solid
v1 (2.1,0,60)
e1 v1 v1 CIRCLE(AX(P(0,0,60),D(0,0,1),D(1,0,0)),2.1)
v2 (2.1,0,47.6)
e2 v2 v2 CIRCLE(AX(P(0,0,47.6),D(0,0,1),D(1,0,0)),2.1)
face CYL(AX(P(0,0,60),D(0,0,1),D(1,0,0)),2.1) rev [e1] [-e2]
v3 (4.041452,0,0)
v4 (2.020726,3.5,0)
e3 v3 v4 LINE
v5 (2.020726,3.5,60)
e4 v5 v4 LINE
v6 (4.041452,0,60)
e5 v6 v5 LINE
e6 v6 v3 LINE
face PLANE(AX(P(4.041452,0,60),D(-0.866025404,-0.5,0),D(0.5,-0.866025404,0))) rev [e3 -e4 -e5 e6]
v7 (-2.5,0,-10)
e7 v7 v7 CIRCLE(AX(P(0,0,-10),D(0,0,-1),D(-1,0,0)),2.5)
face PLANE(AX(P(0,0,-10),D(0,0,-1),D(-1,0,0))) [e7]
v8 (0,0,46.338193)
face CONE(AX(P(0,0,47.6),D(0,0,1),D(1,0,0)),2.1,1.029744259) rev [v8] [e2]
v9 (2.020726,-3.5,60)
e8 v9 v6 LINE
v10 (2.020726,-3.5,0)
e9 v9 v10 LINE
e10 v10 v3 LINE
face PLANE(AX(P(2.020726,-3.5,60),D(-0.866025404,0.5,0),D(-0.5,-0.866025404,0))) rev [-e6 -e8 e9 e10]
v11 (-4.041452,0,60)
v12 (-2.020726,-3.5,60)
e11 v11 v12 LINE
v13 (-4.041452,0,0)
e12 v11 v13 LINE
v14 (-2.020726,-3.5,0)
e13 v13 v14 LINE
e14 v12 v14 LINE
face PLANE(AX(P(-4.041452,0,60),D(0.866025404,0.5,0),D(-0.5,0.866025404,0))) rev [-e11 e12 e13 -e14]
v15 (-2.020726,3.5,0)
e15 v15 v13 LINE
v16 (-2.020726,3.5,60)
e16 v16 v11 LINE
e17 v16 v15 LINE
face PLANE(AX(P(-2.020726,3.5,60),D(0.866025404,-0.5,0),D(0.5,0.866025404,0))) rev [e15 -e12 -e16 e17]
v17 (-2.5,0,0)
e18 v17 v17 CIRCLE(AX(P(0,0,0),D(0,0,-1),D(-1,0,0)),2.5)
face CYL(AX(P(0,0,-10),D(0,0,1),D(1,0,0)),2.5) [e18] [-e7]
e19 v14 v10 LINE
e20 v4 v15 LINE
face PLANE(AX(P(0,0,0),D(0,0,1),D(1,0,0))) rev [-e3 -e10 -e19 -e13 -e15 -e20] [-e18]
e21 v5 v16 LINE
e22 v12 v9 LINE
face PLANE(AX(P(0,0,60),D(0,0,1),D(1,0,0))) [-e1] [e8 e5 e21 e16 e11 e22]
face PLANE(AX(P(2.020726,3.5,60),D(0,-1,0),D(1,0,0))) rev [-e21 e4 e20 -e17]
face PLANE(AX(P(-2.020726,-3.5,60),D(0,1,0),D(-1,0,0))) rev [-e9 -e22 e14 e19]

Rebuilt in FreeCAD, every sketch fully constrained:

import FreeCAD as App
import Part
import Sketcher
from FreeCAD import Vector
Q = App.Units.Quantity


def add_polygon(sketch, points):
    """Adds a closed chain of lines whose ends are joined by coincident constraints."""
    first, n = sketch.GeometryCount, len(points)
    for a, b in zip(points, points[1:] + points[:1]):
        sketch.addGeometry(Part.LineSegment(App.Vector(*a, 0), App.Vector(*b, 0)), False)
    for i in range(n):
        sketch.addConstraint(Sketcher.Constraint("Coincident", first + i, 2, first + (i + 1) % n, 1))

doc = App.newDocument("Part")
body = doc.addObject("PartDesign::Body", "Body")

sketch1 = doc.addObject("Sketcher::SketchObject", "Sketch")
body.addObject(sketch1)
sketch1.AttachmentSupport = (doc.XY_Plane, [""])
sketch1.MapMode = "FlatFace"
add_polygon(sketch1, [(-2.020726, 3.5), (-4.041452, 0), (-2.020726, -3.5), (2.020726, -3.5), (4.041452, 0), (2.020726, 3.5)])
sketch1.addConstraint([
    Sketcher.Constraint("Horizontal", 2),
    Sketcher.Constraint("Horizontal", 5),
    Sketcher.Constraint("Symmetric", 0, 2, 3, 2, -1, 1),
    Sketcher.Constraint("Symmetric", 1, 2, 4, 2, -1, 1),
    Sketcher.Constraint("PointOnObject", 0, 2, -1),
    Sketcher.Constraint("Parallel", 0, 3),
    Sketcher.Constraint("Vertical", 2, 2, 4, 2),
    Sketcher.Constraint("Angle", 0, Q("-120 deg")),
    Sketcher.Constraint("DistanceY", 2, 2, 4, 2, 7.0),
    Sketcher.Constraint("DistanceX", 2, 1, 2, 2, 4.041452),
])
pad1 = doc.addObject("PartDesign::Pad", "Pad")
body.addObject(pad1)
pad1.Profile = sketch1
pad1.Length = 60

sketch2 = doc.addObject("Sketcher::SketchObject", "Sketch001")
body.addObject(sketch2)
sketch2.AttachmentSupport = (doc.XY_Plane, [""])
sketch2.MapMode = "FlatFace"
sketch2.addGeometry(Part.Circle(Vector(0, 0, 0), Vector(0, 0, 1), 2.5), False)
sketch2.addConstraint([
    Sketcher.Constraint("Coincident", 0, 3, -1, 1),
    Sketcher.Constraint("Diameter", 0, 5.0),
])
pad2 = doc.addObject("PartDesign::Pad", "Pad001")
body.addObject(pad2)
pad2.Profile = sketch2
pad2.Length = 10
pad2.Reversed = True

sketch3 = doc.addObject("Sketcher::SketchObject", "Sketch002")
body.addObject(sketch3)
sketch3.AttachmentSupport = (doc.XY_Plane, [""])
sketch3.MapMode = "FlatFace"
sketch3.AttachmentOffset = App.Placement(Vector(0, 0, 60), App.Rotation())
sketch3.addGeometry(Part.Circle(Vector(0, 0, 0), Vector(0, 0, 1), 2.1), False)
sketch3.addConstraint([
    Sketcher.Constraint("Coincident", 0, 3, -1, 1),
    Sketcher.Constraint("Diameter", 0, 4.2),
])
doc.recompute()
hole = doc.addObject("PartDesign::Hole", "Hole")
body.addObject(hole)
hole.Profile = sketch3
hole.ThreadType = "None"
hole.Diameter = 4.2
hole.DepthType = "Dimension"
hole.Depth = 12.4
hole.DrillPoint = "Angled"
hole.DrillPointAngle = 118

doc.recompute()
